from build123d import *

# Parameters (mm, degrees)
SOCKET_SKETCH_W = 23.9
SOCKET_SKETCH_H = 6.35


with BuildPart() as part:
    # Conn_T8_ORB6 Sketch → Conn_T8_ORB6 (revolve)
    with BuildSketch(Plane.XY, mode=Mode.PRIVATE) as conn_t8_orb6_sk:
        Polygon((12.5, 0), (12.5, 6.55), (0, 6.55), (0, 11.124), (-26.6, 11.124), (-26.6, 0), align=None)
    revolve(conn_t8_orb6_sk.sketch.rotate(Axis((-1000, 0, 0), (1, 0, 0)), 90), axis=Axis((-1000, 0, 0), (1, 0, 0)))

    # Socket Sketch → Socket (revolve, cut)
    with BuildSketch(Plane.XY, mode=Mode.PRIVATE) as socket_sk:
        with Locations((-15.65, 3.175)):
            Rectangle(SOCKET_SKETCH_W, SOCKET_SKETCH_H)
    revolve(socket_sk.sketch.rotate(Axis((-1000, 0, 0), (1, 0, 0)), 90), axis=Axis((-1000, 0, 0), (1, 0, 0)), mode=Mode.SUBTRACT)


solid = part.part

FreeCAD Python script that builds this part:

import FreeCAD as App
import Part
import Sketcher


def add_polygon(sketch, points):
    """Adds a closed chain of lines whose ends are joined by coincident constraints."""
    first, n = sketch.GeometryCount, len(points)
    for a, b in zip(points, points[1:] + points[:1]):
        sketch.addGeometry(Part.LineSegment(App.Vector(*a, 0), App.Vector(*b, 0)), False)
    for i in range(n):
        sketch.addConstraint(Sketcher.Constraint("Coincident", first + i, 2, first + (i + 1) % n, 1))

doc = App.newDocument("Part")
body = doc.addObject("PartDesign::Body", "Body")

# Sketch on XY plane
sketch1 = body.newObject("Sketcher::SketchObject", "Sketch")
sketch1.AttachmentSupport = (doc.getObject("XY_Plane"), [""])
sketch1.MapMode = "FlatFace"
add_polygon(sketch1, [(12.5, 0), (12.5, 6.5), (0, 6.5), (0, 11.1), (-26.6, 11.1), (-26.6, 0)])  # lines 0-5
sketch1.addConstraint(Sketcher.Constraint("Vertical", 0))
sketch1.addConstraint(Sketcher.Constraint("Horizontal", 1))
sketch1.addConstraint(Sketcher.Constraint("Vertical", 2))
sketch1.addConstraint(Sketcher.Constraint("Horizontal", 3))
sketch1.addConstraint(Sketcher.Constraint("Vertical", 4))
sketch1.addConstraint(Sketcher.Constraint("Horizontal", 5))
sketch1.addConstraint(Sketcher.Constraint("PointOnObject", 1, 2, -2))
sketch1.addConstraint(Sketcher.Constraint("PointOnObject", 4, 2, -1))
sketch1.addConstraint(Sketcher.Constraint("DistanceX", 1, 2, 1, 1, 12.5))
sketch1.addConstraint(Sketcher.Constraint("DistanceX", 3, 2, 3, 1, 26.6))
sketch1.addConstraint(Sketcher.Constraint("DistanceY", 0, 1, 0, 2, 6.55))
sketch1.addConstraint(Sketcher.Constraint("DistanceY", 2, 1, 2, 2, 4.574))
revolution = body.newObject("PartDesign::Revolution", "Revolution")
revolution.Profile = sketch1
revolution.ReferenceAxis = (sketch1, ["H_Axis"])
revolution.Angle = 360

# Sketch on XY plane
sketch2 = body.newObject("Sketcher::SketchObject", "Sketch001")
sketch2.AttachmentSupport = (doc.getObject("XY_Plane"), [""])
sketch2.MapMode = "FlatFace"
add_polygon(sketch2, [(-28, 6), (-28, 0), (-4, 0), (-4, 6)])  # lines 0-3
sketch2.addConstraint(Sketcher.Constraint("Vertical", 0))
sketch2.addConstraint(Sketcher.Constraint("Horizontal", 1))
sketch2.addConstraint(Sketcher.Constraint("Vertical", 2))
sketch2.addConstraint(Sketcher.Constraint("Horizontal", 3))
sketch2.addConstraint(Sketcher.Constraint("PointOnObject", 0, 2, -1))
sketch2.addConstraint(Sketcher.Constraint("DistanceX", 1, 1, 1, 2, 23.9))
sketch2.addConstraint(Sketcher.Constraint("DistanceY", 0, 2, 0, 1, 6.35))
sketch2.addConstraint(Sketcher.Constraint("DistanceX", 0, 2, -1, 1, 27.6))
groove = body.newObject("PartDesign::Groove", "Groove")
groove.Profile = sketch2
groove.ReferenceAxis = (sketch2, ["H_Axis"])
groove.Angle = 360

doc.recompute()
